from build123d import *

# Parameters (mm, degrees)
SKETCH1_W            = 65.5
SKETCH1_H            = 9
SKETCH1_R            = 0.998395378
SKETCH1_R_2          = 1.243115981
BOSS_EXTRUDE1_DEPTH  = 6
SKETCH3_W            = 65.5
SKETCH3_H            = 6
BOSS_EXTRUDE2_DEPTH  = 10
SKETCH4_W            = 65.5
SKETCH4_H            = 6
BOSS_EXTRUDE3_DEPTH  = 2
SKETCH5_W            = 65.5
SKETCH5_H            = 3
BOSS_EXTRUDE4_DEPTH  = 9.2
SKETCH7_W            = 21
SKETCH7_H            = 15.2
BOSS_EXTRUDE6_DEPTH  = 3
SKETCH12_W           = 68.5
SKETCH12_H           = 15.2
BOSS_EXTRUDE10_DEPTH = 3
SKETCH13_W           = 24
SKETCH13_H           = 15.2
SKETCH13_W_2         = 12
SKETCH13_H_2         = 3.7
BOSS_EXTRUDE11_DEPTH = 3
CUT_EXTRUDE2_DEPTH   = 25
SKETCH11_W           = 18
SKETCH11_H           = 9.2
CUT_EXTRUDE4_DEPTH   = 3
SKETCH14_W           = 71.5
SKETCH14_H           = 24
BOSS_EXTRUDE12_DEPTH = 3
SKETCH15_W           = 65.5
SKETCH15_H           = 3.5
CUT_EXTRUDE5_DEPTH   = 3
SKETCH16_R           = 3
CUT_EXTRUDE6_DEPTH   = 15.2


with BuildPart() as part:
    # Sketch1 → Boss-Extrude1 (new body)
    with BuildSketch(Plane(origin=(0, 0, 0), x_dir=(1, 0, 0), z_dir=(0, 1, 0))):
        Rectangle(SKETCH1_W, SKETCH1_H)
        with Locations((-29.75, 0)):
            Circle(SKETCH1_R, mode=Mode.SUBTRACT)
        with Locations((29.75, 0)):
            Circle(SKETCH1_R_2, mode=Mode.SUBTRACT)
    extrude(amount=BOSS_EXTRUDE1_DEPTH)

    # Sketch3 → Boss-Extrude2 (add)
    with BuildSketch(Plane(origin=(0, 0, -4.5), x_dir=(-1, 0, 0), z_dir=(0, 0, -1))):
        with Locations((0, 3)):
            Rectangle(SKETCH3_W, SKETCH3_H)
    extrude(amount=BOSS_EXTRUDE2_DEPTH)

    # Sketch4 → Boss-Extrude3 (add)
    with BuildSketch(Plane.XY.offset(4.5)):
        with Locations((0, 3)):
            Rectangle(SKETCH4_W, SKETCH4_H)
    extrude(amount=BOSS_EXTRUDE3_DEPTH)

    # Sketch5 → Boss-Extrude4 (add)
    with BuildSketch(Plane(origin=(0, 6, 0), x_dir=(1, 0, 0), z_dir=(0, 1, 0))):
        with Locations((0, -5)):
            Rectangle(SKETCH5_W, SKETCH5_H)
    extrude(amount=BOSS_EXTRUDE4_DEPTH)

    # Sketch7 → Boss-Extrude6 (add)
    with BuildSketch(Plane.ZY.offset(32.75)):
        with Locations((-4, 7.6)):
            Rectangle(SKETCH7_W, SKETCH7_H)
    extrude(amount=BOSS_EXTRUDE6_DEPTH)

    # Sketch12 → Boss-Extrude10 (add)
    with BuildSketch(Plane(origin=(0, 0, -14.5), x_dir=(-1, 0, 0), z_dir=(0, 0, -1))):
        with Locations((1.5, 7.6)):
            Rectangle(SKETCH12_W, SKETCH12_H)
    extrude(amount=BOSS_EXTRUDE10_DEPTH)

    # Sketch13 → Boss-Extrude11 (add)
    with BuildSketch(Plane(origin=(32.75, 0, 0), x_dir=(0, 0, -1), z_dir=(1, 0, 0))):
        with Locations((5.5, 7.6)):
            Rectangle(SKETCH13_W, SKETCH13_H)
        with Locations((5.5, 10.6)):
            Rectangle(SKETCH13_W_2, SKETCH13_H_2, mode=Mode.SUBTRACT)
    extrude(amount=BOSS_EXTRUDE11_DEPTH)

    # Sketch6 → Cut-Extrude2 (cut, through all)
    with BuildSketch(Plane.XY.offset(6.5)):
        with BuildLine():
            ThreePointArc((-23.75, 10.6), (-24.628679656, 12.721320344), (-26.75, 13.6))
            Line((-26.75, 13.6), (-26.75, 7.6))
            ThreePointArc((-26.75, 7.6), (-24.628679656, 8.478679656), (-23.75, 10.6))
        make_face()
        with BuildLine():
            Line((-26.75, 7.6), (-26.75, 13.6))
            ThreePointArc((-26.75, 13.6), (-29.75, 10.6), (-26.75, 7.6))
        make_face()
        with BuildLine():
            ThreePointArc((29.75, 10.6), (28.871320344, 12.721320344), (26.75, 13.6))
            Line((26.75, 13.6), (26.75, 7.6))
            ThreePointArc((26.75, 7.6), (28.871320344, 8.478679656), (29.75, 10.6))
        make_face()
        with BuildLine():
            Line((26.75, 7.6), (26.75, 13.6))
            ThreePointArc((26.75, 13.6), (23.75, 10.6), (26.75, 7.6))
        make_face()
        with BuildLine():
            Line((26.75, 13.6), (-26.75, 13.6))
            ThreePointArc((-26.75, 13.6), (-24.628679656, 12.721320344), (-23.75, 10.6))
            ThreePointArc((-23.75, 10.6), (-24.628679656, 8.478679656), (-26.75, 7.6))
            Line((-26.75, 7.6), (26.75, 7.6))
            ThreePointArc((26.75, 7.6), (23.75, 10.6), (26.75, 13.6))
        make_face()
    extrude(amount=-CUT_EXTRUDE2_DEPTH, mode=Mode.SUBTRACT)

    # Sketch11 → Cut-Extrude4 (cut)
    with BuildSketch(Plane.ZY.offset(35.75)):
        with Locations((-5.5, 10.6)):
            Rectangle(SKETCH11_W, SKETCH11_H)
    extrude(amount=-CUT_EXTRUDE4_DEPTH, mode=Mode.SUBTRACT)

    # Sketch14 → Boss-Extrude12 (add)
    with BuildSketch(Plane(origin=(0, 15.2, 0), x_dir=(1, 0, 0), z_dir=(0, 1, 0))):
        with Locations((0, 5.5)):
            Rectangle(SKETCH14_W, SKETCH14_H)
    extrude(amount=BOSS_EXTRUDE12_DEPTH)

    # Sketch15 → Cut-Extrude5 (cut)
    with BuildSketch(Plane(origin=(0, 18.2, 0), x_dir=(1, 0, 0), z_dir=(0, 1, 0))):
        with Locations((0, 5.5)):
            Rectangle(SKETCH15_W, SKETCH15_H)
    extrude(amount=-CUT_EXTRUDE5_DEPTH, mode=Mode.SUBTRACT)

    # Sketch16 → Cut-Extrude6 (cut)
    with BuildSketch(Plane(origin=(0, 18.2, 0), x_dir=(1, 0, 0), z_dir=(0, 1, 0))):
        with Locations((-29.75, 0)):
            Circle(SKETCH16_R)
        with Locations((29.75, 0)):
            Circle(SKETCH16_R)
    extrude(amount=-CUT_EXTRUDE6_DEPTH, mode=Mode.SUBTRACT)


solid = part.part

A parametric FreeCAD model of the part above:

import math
import FreeCAD as App
import Part
import Sketcher

V = App.Vector

doc = App.newDocument("Part")
body = doc.addObject("PartDesign::Body", "Body")

# Sketch on XZ plane
sketch1 = body.newObject("Sketcher::SketchObject", "Sketch")
sketch1.AttachmentSupport = (doc.getObject("XZ_Plane"), [""])
sketch1.MapMode = "FlatFace"
sketch1.addGeometry(Part.LineSegment(V(-32.75, -4.5, 0), V(-32.75, 4.5, 0)), False)
sketch1.addGeometry(Part.LineSegment(V(-32.75, 4.5, 0), V(32.75, 4.5, 0)), False)
sketch1.addGeometry(Part.LineSegment(V(32.75, 4.5, 0), V(32.75, -4.5, 0)), False)
sketch1.addGeometry(Part.LineSegment(V(32.75, -4.5, 0), V(-32.75, -4.5, 0)), False)
sketch1.addGeometry(Part.Circle(V(-29.75, 0, 0), V(0, 0, 1), 0.998395), False)
sketch1.addGeometry(Part.Circle(V(29.75, 0, 0), V(0, 0, 1), 1.243116), False)
sketch1.addConstraint(Sketcher.Constraint("Coincident", 0, 2, 1, 1))
sketch1.addConstraint(Sketcher.Constraint("Coincident", 1, 2, 2, 1))
sketch1.addConstraint(Sketcher.Constraint("Coincident", 2, 2, 3, 1))
sketch1.addConstraint(Sketcher.Constraint("Coincident", 3, 2, 0, 1))
sketch1.addConstraint(Sketcher.Constraint("Vertical", 0))
sketch1.addConstraint(Sketcher.Constraint("Horizontal", 1))
sketch1.addConstraint(Sketcher.Constraint("Vertical", 2))
sketch1.addConstraint(Sketcher.Constraint("Horizontal", 3))
sketch1.addConstraint(Sketcher.Constraint("Symmetric", 4, 3, 5, 3, -1, 1))
sketch1.addConstraint(Sketcher.Constraint("Symmetric", 0, 2, 2, 2, -1, 1))
sketch1.addConstraint(Sketcher.Constraint("PointOnObject", 4, 3, -1))
sketch1.addConstraint(Sketcher.Constraint("DistanceY", 0, 1, 0, 2, 9.0))
sketch1.addConstraint(Sketcher.Constraint("DistanceX", 1, 1, 1, 2, 65.5))
sketch1.addConstraint(Sketcher.Constraint("DistanceX", 0, 2, 4, 3, 3.0))
sketch1.addConstraint(Sketcher.Constraint("Diameter", 4, 1.996791))
sketch1.addConstraint(Sketcher.Constraint("Diameter", 5, 2.486232))
pad1 = body.newObject("PartDesign::Pad", "Pad")
pad1.Profile = sketch1
pad1.Length = 6
pad1.Reversed = True

# Sketch on XY plane
sketch2 = body.newObject("Sketcher::SketchObject", "Sketch001")
sketch2.AttachmentSupport = (doc.getObject("XY_Plane"), [""])
sketch2.MapMode = "FlatFace"
sketch2.AttachmentOffset = App.Placement(V(0, 0, -4.5), App.Rotation())
sketch2.addGeometry(Part.LineSegment(V(32.75, 6, 0), V(32.75, 0, 0)), False)
sketch2.addGeometry(Part.LineSegment(V(32.75, 0, 0), V(-32.75, 0, 0)), False)
sketch2.addGeometry(Part.LineSegment(V(-32.75, 0, 0), V(-32.75, 6, 0)), False)
sketch2.addGeometry(Part.LineSegment(V(-32.75, 6, 0), V(32.75, 6, 0)), False)
sketch2.addConstraint(Sketcher.Constraint("Coincident", 0, 2, 1, 1))
sketch2.addConstraint(Sketcher.Constraint("Coincident", 1, 2, 2, 1))
sketch2.addConstraint(Sketcher.Constraint("Coincident", 2, 2, 3, 1))
sketch2.addConstraint(Sketcher.Constraint("Coincident", 3, 2, 0, 1))
sketch2.addConstraint(Sketcher.Constraint("Vertical", 0))
sketch2.addConstraint(Sketcher.Constraint("Horizontal", 1))
sketch2.addConstraint(Sketcher.Constraint("Vertical", 2))
sketch2.addConstraint(Sketcher.Constraint("Horizontal", 3))
sketch2.addConstraint(Sketcher.Constraint("Symmetric", 0, 2, 1, 2, -1, 1))
sketch2.addConstraint(Sketcher.Constraint("DistanceY", 0, 2, 0, 1, 6.0))
sketch2.addConstraint(Sketcher.Constraint("DistanceX", 1, 2, 1, 1, 65.5))
pad2 = body.newObject("PartDesign::Pad", "Pad001")
pad2.Profile = sketch2
pad2.Length = 10
pad2.Reversed = True

# Sketch on XY plane
sketch3 = body.newObject("Sketcher::SketchObject", "Sketch002")
sketch3.AttachmentSupport = (doc.getObject("XY_Plane"), [""])
sketch3.MapMode = "FlatFace"
sketch3.AttachmentOffset = App.Placement(V(0, 0, 4.5), App.Rotation())
sketch3.addGeometry(Part.LineSegment(V(-32.75, 6, 0), V(-32.75, 0, 0)), False)
sketch3.addGeometry(Part.LineSegment(V(-32.75, 0, 0), V(32.75, 0, 0)), False)
sketch3.addGeometry(Part.LineSegment(V(32.75, 0, 0), V(32.75, 6, 0)), False)
sketch3.addGeometry(Part.LineSegment(V(32.75, 6, 0), V(-32.75, 6, 0)), False)
sketch3.addConstraint(Sketcher.Constraint("Coincident", 0, 2, 1, 1))
sketch3.addConstraint(Sketcher.Constraint("Coincident", 1, 2, 2, 1))
sketch3.addConstraint(Sketcher.Constraint("Coincident", 2, 2, 3, 1))
sketch3.addConstraint(Sketcher.Constraint("Coincident", 3, 2, 0, 1))
sketch3.addConstraint(Sketcher.Constraint("Vertical", 0))
sketch3.addConstraint(Sketcher.Constraint("Horizontal", 1))
sketch3.addConstraint(Sketcher.Constraint("Vertical", 2))
sketch3.addConstraint(Sketcher.Constraint("Horizontal", 3))
sketch3.addConstraint(Sketcher.Constraint("Symmetric", 0, 2, 1, 2, -1, 1))
sketch3.addConstraint(Sketcher.Constraint("DistanceY", 0, 2, 0, 1, 6.0))
sketch3.addConstraint(Sketcher.Constraint("DistanceX", 1, 1, 1, 2, 65.5))
pad3 = body.newObject("PartDesign::Pad", "Pad002")
pad3.Profile = sketch3
pad3.Length = 2

# Sketch on XZ plane
sketch4 = body.newObject("Sketcher::SketchObject", "Sketch003")
sketch4.AttachmentSupport = (doc.getObject("XZ_Plane"), [""])
sketch4.MapMode = "FlatFace"
sketch4.AttachmentOffset = App.Placement(V(0, 0, -6), App.Rotation())
sketch4.addGeometry(Part.LineSegment(V(-32.75, 3.5, 0), V(-32.75, 6.5, 0)), False)
sketch4.addGeometry(Part.LineSegment(V(-32.75, 6.5, 0), V(32.75, 6.5, 0)), False)
sketch4.addGeometry(Part.LineSegment(V(32.75, 6.5, 0), V(32.75, 3.5, 0)), False)
sketch4.addGeometry(Part.LineSegment(V(32.75, 3.5, 0), V(-32.75, 3.5, 0)), False)
sketch4.addConstraint(Sketcher.Constraint("Coincident", 0, 2, 1, 1))
sketch4.addConstraint(Sketcher.Constraint("Coincident", 1, 2, 2, 1))
sketch4.addConstraint(Sketcher.Constraint("Coincident", 2, 2, 3, 1))
sketch4.addConstraint(Sketcher.Constraint("Coincident", 3, 2, 0, 1))
sketch4.addConstraint(Sketcher.Constraint("Vertical", 0))
sketch4.addConstraint(Sketcher.Constraint("Horizontal", 1))
sketch4.addConstraint(Sketcher.Constraint("Vertical", 2))
sketch4.addConstraint(Sketcher.Constraint("Horizontal", 3))
sketch4.addConstraint(Sketcher.Constraint("DistanceY", 0, 1, 0, 2, 3.0))
sketch4.addConstraint(Sketcher.Constraint("DistanceX", 1, 1, 1, 2, 65.5))
sketch4.addConstraint(Sketcher.Constraint("DistanceY", -1, 1, 0, 2, 6.5))
sketch4.addConstraint(Sketcher.Constraint("DistanceX", 0, 2, -1, 1, 32.75))
pad4 = body.newObject("PartDesign::Pad", "Pad003")
pad4.Profile = sketch4
pad4.Length = 9.2
pad4.Reversed = True

# Sketch on YZ plane
sketch5 = body.newObject("Sketcher::SketchObject", "Sketch004")
sketch5.AttachmentSupport = (doc.getObject("YZ_Plane"), [""])
sketch5.MapMode = "FlatFace"
sketch5.AttachmentOffset = App.Placement(V(0, 0, -32.75), App.Rotation())
sketch5.addGeometry(Part.LineSegment(V(15.2, -14.5, 0), V(0, -14.5, 0)), False)
sketch5.addGeometry(Part.LineSegment(V(0, -14.5, 0), V(0, 6.5, 0)), False)
sketch5.addGeometry(Part.LineSegment(V(0, 6.5, 0), V(15.2, 6.5, 0)), False)
sketch5.addGeometry(Part.LineSegment(V(15.2, 6.5, 0), V(15.2, -14.5, 0)), False)
sketch5.addConstraint(Sketcher.Constraint("Coincident", 0, 2, 1, 1))
sketch5.addConstraint(Sketcher.Constraint("Coincident", 1, 2, 2, 1))
sketch5.addConstraint(Sketcher.Constraint("Coincident", 2, 2, 3, 1))
sketch5.addConstraint(Sketcher.Constraint("Coincident", 3, 2, 0, 1))
sketch5.addConstraint(Sketcher.Constraint("Horizontal", 0))
sketch5.addConstraint(Sketcher.Constraint("Vertical", 1))
sketch5.addConstraint(Sketcher.Constraint("Horizontal", 2))
sketch5.addConstraint(Sketcher.Constraint("Vertical", 3))
sketch5.addConstraint(Sketcher.Constraint("PointOnObject", 0, 2, -2))
sketch5.addConstraint(Sketcher.Constraint("DistanceY", 1, 1, 1, 2, 21.0))
sketch5.addConstraint(Sketcher.Constraint("DistanceX", 0, 2, 0, 1, 15.2))
sketch5.addConstraint(Sketcher.Constraint("DistanceY", 0, 2, -1, 1, 14.5))
pad5 = body.newObject("PartDesign::Pad", "Pad004")
pad5.Profile = sketch5
pad5.Length = 3
pad5.Reversed = True

# Sketch on XY plane
sketch6 = body.newObject("Sketcher::SketchObject", "Sketch005")
sketch6.AttachmentSupport = (doc.getObject("XY_Plane"), [""])
sketch6.MapMode = "FlatFace"
sketch6.AttachmentOffset = App.Placement(V(0, 0, -14.5), App.Rotation())
sketch6.addGeometry(Part.LineSegment(V(32.75, 15.2, 0), V(32.75, 0, 0)), False)
sketch6.addGeometry(Part.LineSegment(V(32.75, 0, 0), V(-35.75, 0, 0)), False)
sketch6.addGeometry(Part.LineSegment(V(-35.75, 0, 0), V(-35.75, 15.2, 0)), False)
sketch6.addGeometry(Part.LineSegment(V(-35.75, 15.2, 0), V(32.75, 15.2, 0)), False)
sketch6.addConstraint(Sketcher.Constraint("Coincident", 0, 2, 1, 1))
sketch6.addConstraint(Sketcher.Constraint("Coincident", 1, 2, 2, 1))
sketch6.addConstraint(Sketcher.Constraint("Coincident", 2, 2, 3, 1))
sketch6.addConstraint(Sketcher.Constraint("Coincident", 3, 2, 0, 1))
sketch6.addConstraint(Sketcher.Constraint("Vertical", 0))
sketch6.addConstraint(Sketcher.Constraint("Horizontal", 1))
sketch6.addConstraint(Sketcher.Constraint("Vertical", 2))
sketch6.addConstraint(Sketcher.Constraint("Horizontal", 3))
sketch6.addConstraint(Sketcher.Constraint("PointOnObject", 0, 2, -1))
sketch6.addConstraint(Sketcher.Constraint("DistanceX", 1, 2, 1, 1, 68.5))
sketch6.addConstraint(Sketcher.Constraint("DistanceY", 0, 2, 0, 1, 15.2))
sketch6.addConstraint(Sketcher.Constraint("DistanceX", -1, 1, 0, 2, 32.75))
pad6 = body.newObject("PartDesign::Pad", "Pad005")
pad6.Profile = sketch6
pad6.Length = 3
pad6.Reversed = True

# Sketch on YZ plane
sketch7 = body.newObject("Sketcher::SketchObject", "Sketch006")
sketch7.AttachmentSupport = (doc.getObject("YZ_Plane"), [""])
sketch7.MapMode = "FlatFace"
sketch7.AttachmentOffset = App.Placement(V(0, 0, 32.75), App.Rotation())
sketch7.addGeometry(Part.LineSegment(V(15.2, 6.5, 0), V(0, 6.5, 0)), False)
sketch7.addGeometry(Part.LineSegment(V(0, 6.5, 0), V(0, -17.5, 0)), False)
sketch7.addGeometry(Part.LineSegment(V(0, -17.5, 0), V(15.2, -17.5, 0)), False)
sketch7.addGeometry(Part.LineSegment(V(15.2, -17.5, 0), V(15.2, 6.5, 0)), False)
sketch7.addGeometry(Part.LineSegment(V(8.75, -11.5, 0), V(8.75, 0.5, 0)), False)
sketch7.addGeometry(Part.LineSegment(V(8.75, 0.5, 0), V(12.45, 0.5, 0)), False)
sketch7.addGeometry(Part.LineSegment(V(12.45, 0.5, 0), V(12.45, -11.5, 0)), False)
sketch7.addGeometry(Part.LineSegment(V(12.45, -11.5, 0), V(8.75, -11.5, 0)), False)
sketch7.addConstraint(Sketcher.Constraint("Coincident", 0, 2, 1, 1))
sketch7.addConstraint(Sketcher.Constraint("Coincident", 1, 2, 2, 1))
sketch7.addConstraint(Sketcher.Constraint("Coincident", 2, 2, 3, 1))
sketch7.addConstraint(Sketcher.Constraint("Coincident", 3, 2, 0, 1))
sketch7.addConstraint(Sketcher.Constraint("Coincident", 4, 2, 5, 1))
sketch7.addConstraint(Sketcher.Constraint("Coincident", 5, 2, 6, 1))
sketch7.addConstraint(Sketcher.Constraint("Coincident", 6, 2, 7, 1))
sketch7.addConstraint(Sketcher.Constraint("Coincident", 7, 2, 4, 1))
sketch7.addConstraint(Sketcher.Constraint("Horizontal", 0))
sketch7.addConstraint(Sketcher.Constraint("Vertical", 1))
sketch7.addConstraint(Sketcher.Constraint("Horizontal", 2))
sketch7.addConstraint(Sketcher.Constraint("Vertical", 3))
sketch7.addConstraint(Sketcher.Constraint("Vertical", 4))
sketch7.addConstraint(Sketcher.Constraint("Horizontal", 5))
sketch7.addConstraint(Sketcher.Constraint("Vertical", 6))
sketch7.addConstraint(Sketcher.Constraint("Horizontal", 7))
sketch7.addConstraint(Sketcher.Constraint("PointOnObject", 0, 2, -2))
sketch7.addConstraint(Sketcher.Constraint("DistanceY", 1, 2, 1, 1, 24.0))
sketch7.addConstraint(Sketcher.Constraint("DistanceY", 4, 1, 4, 2, 12.0))
sketch7.addConstraint(Sketcher.Constraint("DistanceX", 0, 2, 0, 1, 15.2))
sketch7.addConstraint(Sketcher.Constraint("DistanceX", 5, 1, 5, 2, 3.7))
sketch7.addConstraint(Sketcher.Constraint("DistanceY", 4, 2, 3, 2, 6.0))
sketch7.addConstraint(Sketcher.Constraint("DistanceY", -1, 1, 0, 2, 6.5))
sketch7.addConstraint(Sketcher.Constraint("DistanceX", -1, 1, 4, 2, 8.75))
pad7 = body.newObject("PartDesign::Pad", "Pad006")
pad7.Profile = sketch7
pad7.Length = 3

# Sketch on XY plane
sketch8 = body.newObject("Sketcher::SketchObject", "Sketch007")
sketch8.AttachmentSupport = (doc.getObject("XY_Plane"), [""])
sketch8.MapMode = "FlatFace"
sketch8.AttachmentOffset = App.Placement(V(0, 0, 6.5), App.Rotation())
sketch8.addGeometry(Part.ArcOfCircle(Part.Circle(V(-26.75, 10.6, 0), V(0, 0, 1), 3), math.radians(90), math.radians(270)), False)
sketch8.addGeometry(Part.LineSegment(V(-26.75, 7.6, 0), V(26.75, 7.6, 0)), False)
sketch8.addGeometry(Part.ArcOfCircle(Part.Circle(V(26.75, 10.6, 0), V(0, 0, 1), 3), math.radians(-90), math.radians(0)), False)
sketch8.addGeometry(Part.ArcOfCircle(Part.Circle(V(26.75, 10.6, 0), V(0, 0, 1), 3), math.radians(0), math.radians(90)), False)
sketch8.addGeometry(Part.LineSegment(V(26.75, 13.6, 0), V(-26.75, 13.6, 0)), False)
sketch8.addConstraint(Sketcher.Constraint("Tangent", 0, 2, 1, 1))
sketch8.addConstraint(Sketcher.Constraint("Tangent", 1, 2, 2, 1))
sketch8.addConstraint(Sketcher.Constraint("Tangent", 2, 2, 3, 1))
sketch8.addConstraint(Sketcher.Constraint("Tangent", 3, 2, 4, 1))
sketch8.addConstraint(Sketcher.Constraint("Tangent", 4, 2, 0, 1))
sketch8.addConstraint(Sketcher.Constraint("Horizontal", 1))
sketch8.addConstraint(Sketcher.Constraint("Horizontal", 4))
sketch8.addConstraint(Sketcher.Constraint("Equal", 0, 2))
sketch8.addConstraint(Sketcher.Constraint("Horizontal", 3, 3, 2, 2))
sketch8.addConstraint(Sketcher.Constraint("Radius", 0, 3.0))
sketch8.addConstraint(Sketcher.Constraint("DistanceX", 1, 1, 1, 2, 53.5))
sketch8.addConstraint(Sketcher.Constraint("DistanceY", -1, 1, 0, 3, 10.6))
sketch8.addConstraint(Sketcher.Constraint("DistanceX", 0, 3, -1, 1, 26.75))
pocket1 = body.newObject("PartDesign::Pocket", "Pocket")
pocket1.Profile = sketch8
pocket1.Type = "ThroughAll"

# Sketch on YZ plane
sketch9 = body.newObject("Sketcher::SketchObject", "Sketch008")
sketch9.AttachmentSupport = (doc.getObject("YZ_Plane"), [""])
sketch9.MapMode = "FlatFace"
sketch9.AttachmentOffset = App.Placement(V(0, 0, -35.75), App.Rotation())
sketch9.addGeometry(Part.LineSegment(V(15.2, -14.5, 0), V(6, -14.5, 0)), False)
sketch9.addGeometry(Part.LineSegment(V(6, -14.5, 0), V(6, 3.5, 0)), False)
sketch9.addGeometry(Part.LineSegment(V(6, 3.5, 0), V(15.2, 3.5, 0)), False)
sketch9.addGeometry(Part.LineSegment(V(15.2, 3.5, 0), V(15.2, -14.5, 0)), False)
sketch9.addConstraint(Sketcher.Constraint("Coincident", 0, 2, 1, 1))
sketch9.addConstraint(Sketcher.Constraint("Coincident", 1, 2, 2, 1))
sketch9.addConstraint(Sketcher.Constraint("Coincident", 2, 2, 3, 1))
sketch9.addConstraint(Sketcher.Constraint("Coincident", 3, 2, 0, 1))
sketch9.addConstraint(Sketcher.Constraint("Horizontal", 0))
sketch9.addConstraint(Sketcher.Constraint("Vertical", 1))
sketch9.addConstraint(Sketcher.Constraint("Horizontal", 2))
sketch9.addConstraint(Sketcher.Constraint("Vertical", 3))
sketch9.addConstraint(Sketcher.Constraint("DistanceY", 1, 1, 1, 2, 18.0))
sketch9.addConstraint(Sketcher.Constraint("DistanceX", 0, 2, 0, 1, 9.2))
sketch9.addConstraint(Sketcher.Constraint("DistanceX", -1, 1, 0, 2, 6.0))
sketch9.addConstraint(Sketcher.Constraint("DistanceY", 0, 2, -1, 1, 14.5))
pocket2 = body.newObject("PartDesign::Pocket", "Pocket001")
pocket2.Profile = sketch9
pocket2.Length = 3
pocket2.Reversed = True

# Sketch on XZ plane
sketch10 = body.newObject("Sketcher::SketchObject", "Sketch009")
sketch10.AttachmentSupport = (doc.getObject("XZ_Plane"), [""])
sketch10.MapMode = "FlatFace"
sketch10.AttachmentOffset = App.Placement(V(0, 0, -15.2), App.Rotation())
sketch10.addGeometry(Part.LineSegment(V(-35.75, -17.5, 0), V(-35.75, 6.5, 0)), False)
sketch10.addGeometry(Part.LineSegment(V(-35.75, 6.5, 0), V(35.75, 6.5, 0)), False)
sketch10.addGeometry(Part.LineSegment(V(35.75, 6.5, 0), V(35.75, -17.5, 0)), False)
sketch10.addGeometry(Part.LineSegment(V(35.75, -17.5, 0), V(-35.75, -17.5, 0)), False)
sketch10.addConstraint(Sketcher.Constraint("Coincident", 0, 2, 1, 1))
sketch10.addConstraint(Sketcher.Constraint("Coincident", 1, 2, 2, 1))
sketch10.addConstraint(Sketcher.Constraint("Coincident", 2, 2, 3, 1))
sketch10.addConstraint(Sketcher.Constraint("Coincident", 3, 2, 0, 1))
sketch10.addConstraint(Sketcher.Constraint("Vertical", 0))
sketch10.addConstraint(Sketcher.Constraint("Horizontal", 1))
sketch10.addConstraint(Sketcher.Constraint("Vertical", 2))
sketch10.addConstraint(Sketcher.Constraint("Horizontal", 3))
sketch10.addConstraint(Sketcher.Constraint("DistanceY", 0, 1, 0, 2, 24.0))
sketch10.addConstraint(Sketcher.Constraint("DistanceX", 1, 1, 1, 2, 71.5))
sketch10.addConstraint(Sketcher.Constraint("DistanceY", -1, 1, 0, 2, 6.5))
sketch10.addConstraint(Sketcher.Constraint("DistanceX", 0, 2, -1, 1, 35.75))
pad8 = body.newObject("PartDesign::Pad", "Pad007")
pad8.Profile = sketch10
pad8.Length = 3
pad8.Reversed = True

# Sketch on XZ plane
sketch11 = body.newObject("Sketcher::SketchObject", "Sketch010")
sketch11.AttachmentSupport = (doc.getObject("XZ_Plane"), [""])
sketch11.MapMode = "FlatFace"
sketch11.AttachmentOffset = App.Placement(V(0, 0, -18.2), App.Rotation())
sketch11.addGeometry(Part.LineSegment(V(-32.75, -7.25, 0), V(-32.75, -3.75, 0)), False)
sketch11.addGeometry(Part.LineSegment(V(-32.75, -3.75, 0), V(32.75, -3.75, 0)), False)
sketch11.addGeometry(Part.LineSegment(V(32.75, -3.75, 0), V(32.75, -7.25, 0)), False)
sketch11.addGeometry(Part.LineSegment(V(32.75, -7.25, 0), V(-32.75, -7.25, 0)), False)
sketch11.addConstraint(Sketcher.Constraint("Coincident", 0, 2, 1, 1))
sketch11.addConstraint(Sketcher.Constraint("Coincident", 1, 2, 2, 1))
sketch11.addConstraint(Sketcher.Constraint("Coincident", 2, 2, 3, 1))
sketch11.addConstraint(Sketcher.Constraint("Coincident", 3, 2, 0, 1))
sketch11.addConstraint(Sketcher.Constraint("Vertical", 0))
sketch11.addConstraint(Sketcher.Constraint("Horizontal", 1))
sketch11.addConstraint(Sketcher.Constraint("Vertical", 2))
sketch11.addConstraint(Sketcher.Constraint("Horizontal", 3))
sketch11.addConstraint(Sketcher.Constraint("DistanceX", 1, 1, 1, 2, 65.5))
sketch11.addConstraint(Sketcher.Constraint("DistanceY", 0, 1, 0, 2, 3.5))
sketch11.addConstraint(Sketcher.Constraint("DistanceX", 0, 2, -1, 1, 32.75))
sketch11.addConstraint(Sketcher.Constraint("DistanceY", 0, 2, -1, 1, 3.75))
pocket3 = body.newObject("PartDesign::Pocket", "Pocket002")
pocket3.Profile = sketch11
pocket3.Length = 3
pocket3.Reversed = True

# Sketch on XZ plane
sketch12 = body.newObject("Sketcher::SketchObject", "Sketch011")
sketch12.AttachmentSupport = (doc.getObject("XZ_Plane"), [""])
sketch12.MapMode = "FlatFace"
sketch12.AttachmentOffset = App.Placement(V(0, 0, -18.2), App.Rotation())
sketch12.addGeometry(Part.Circle(V(-29.75, 0, 0), V(0, 0, 1), 3), False)
sketch12.addGeometry(Part.Circle(V(29.75, 0, 0), V(0, 0, 1), 3), False)
sketch12.addConstraint(Sketcher.Constraint("Equal", 0, 1))
sketch12.addConstraint(Sketcher.Constraint("Symmetric", 0, 3, 1, 3, -1, 1))
sketch12.addConstraint(Sketcher.Constraint("PointOnObject", 0, 3, -1))
sketch12.addConstraint(Sketcher.Constraint("Diameter", 0, 6.0))
sketch12.addConstraint(Sketcher.Constraint("DistanceX", 0, 3, 1, 3, 59.5))
pocket4 = body.newObject("PartDesign::Pocket", "Pocket003")
pocket4.Profile = sketch12
pocket4.Length = 15.2
pocket4.Reversed = True

doc.recompute()
